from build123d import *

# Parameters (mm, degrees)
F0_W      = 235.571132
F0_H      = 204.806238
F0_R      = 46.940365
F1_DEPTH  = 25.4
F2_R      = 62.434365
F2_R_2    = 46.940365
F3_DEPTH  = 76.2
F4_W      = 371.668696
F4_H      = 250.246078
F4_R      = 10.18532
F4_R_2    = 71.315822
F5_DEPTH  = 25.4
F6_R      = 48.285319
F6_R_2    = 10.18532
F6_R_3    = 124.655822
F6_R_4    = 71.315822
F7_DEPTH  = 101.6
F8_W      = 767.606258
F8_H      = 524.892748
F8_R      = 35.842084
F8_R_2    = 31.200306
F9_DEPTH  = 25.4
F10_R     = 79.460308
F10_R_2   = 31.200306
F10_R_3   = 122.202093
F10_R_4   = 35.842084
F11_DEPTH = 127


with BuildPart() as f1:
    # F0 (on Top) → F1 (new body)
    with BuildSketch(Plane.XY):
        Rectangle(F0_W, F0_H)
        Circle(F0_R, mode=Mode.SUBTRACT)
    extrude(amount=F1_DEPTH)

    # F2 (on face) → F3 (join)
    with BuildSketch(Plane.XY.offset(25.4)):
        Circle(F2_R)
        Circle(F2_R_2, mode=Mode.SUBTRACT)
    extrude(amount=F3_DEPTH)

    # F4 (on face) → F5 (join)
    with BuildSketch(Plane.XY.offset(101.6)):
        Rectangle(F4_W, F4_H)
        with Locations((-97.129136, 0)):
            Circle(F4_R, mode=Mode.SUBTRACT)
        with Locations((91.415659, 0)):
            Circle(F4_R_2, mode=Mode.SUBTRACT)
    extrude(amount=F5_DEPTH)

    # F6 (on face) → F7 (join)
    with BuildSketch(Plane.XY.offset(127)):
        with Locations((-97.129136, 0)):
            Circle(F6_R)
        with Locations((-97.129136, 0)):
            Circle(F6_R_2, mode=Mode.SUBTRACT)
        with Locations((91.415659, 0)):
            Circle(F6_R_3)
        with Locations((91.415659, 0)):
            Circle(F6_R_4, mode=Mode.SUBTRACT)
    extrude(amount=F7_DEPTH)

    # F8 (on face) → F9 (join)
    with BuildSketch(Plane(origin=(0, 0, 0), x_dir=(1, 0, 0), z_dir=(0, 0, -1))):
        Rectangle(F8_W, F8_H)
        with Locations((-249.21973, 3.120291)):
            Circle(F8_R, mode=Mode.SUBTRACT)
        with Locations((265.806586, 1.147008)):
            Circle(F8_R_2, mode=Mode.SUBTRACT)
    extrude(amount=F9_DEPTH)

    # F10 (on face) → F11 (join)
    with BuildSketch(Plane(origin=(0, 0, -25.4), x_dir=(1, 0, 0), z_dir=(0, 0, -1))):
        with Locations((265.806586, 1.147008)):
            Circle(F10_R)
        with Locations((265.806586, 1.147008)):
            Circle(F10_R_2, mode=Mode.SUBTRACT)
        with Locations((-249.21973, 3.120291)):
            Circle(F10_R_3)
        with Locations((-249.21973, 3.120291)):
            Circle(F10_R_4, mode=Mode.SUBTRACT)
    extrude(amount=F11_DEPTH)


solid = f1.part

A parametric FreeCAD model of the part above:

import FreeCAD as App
import Part
import Sketcher

V = App.Vector
Q = App.Units.Quantity


def add_polygon(sketch, points):
    """Adds a closed chain of lines whose ends are joined by coincident constraints."""
    first, n = sketch.GeometryCount, len(points)
    for a, b in zip(points, points[1:] + points[:1]):
        sketch.addGeometry(Part.LineSegment(App.Vector(*a, 0), App.Vector(*b, 0)), False)
    for i in range(n):
        sketch.addConstraint(Sketcher.Constraint("Coincident", first + i, 2, first + (i + 1) % n, 1))

doc = App.newDocument("Part")
params = doc.addObject("Spreadsheet::Sheet", "Params")
for row, (alias, value) in enumerate([
    ("pad1_length", "1 in"),
    ("pad2_length", "3 in"),
    ("pad3_length", "1 in"),
    ("pad4_length", "4 in"),
    ("pad5_length", "1 in"),
    ("pad6_length", "5 in"),
], start=1):
    params.set(f"A{row}", alias)
    params.set(f"B{row}", "=" + value)
    params.setAlias(f"B{row}", alias)

body = doc.addObject("PartDesign::Body", "Body")

# Sketch on XY plane
sketch1 = body.newObject("Sketcher::SketchObject", "Sketch")
sketch1.AttachmentSupport = (doc.getObject("XY_Plane"), [""])
sketch1.MapMode = "FlatFace"
add_polygon(sketch1, [(-118, 102), (-118, -102), (118, -102), (118, 102)])  # lines 0-3
sketch1.addGeometry(Part.Circle(V(0, 0, 0), V(0, 0, 1), 47), False)  # 4
sketch1.addConstraint([
    Sketcher.Constraint("Vertical", 0),
    Sketcher.Constraint("Horizontal", 1),
    Sketcher.Constraint("Vertical", 2),
    Sketcher.Constraint("Horizontal", 3),
    Sketcher.Constraint("Coincident", 4, 3, -1, 1),
    Sketcher.Constraint("Symmetric", 0, 2, 2, 2, -1, 1),
    Sketcher.Constraint("Diameter", 4, Q("93.88073 mm")),
    Sketcher.Constraint("DistanceX", 1, 1, 1, 2, Q("235.571132 mm")),
    Sketcher.Constraint("DistanceY", 0, 2, 0, 1, Q("204.806238 mm")),
])
pad1 = body.newObject("PartDesign::Pad", "Pad")
pad1.Profile = sketch1
pad1.setExpression("Length", "Params.pad1_length")

# Sketch on XY plane
sketch2 = body.newObject("Sketcher::SketchObject", "Sketch001")
sketch2.AttachmentSupport = (doc.getObject("XY_Plane"), [""])
sketch2.MapMode = "FlatFace"
sketch2.AttachmentOffset = App.Placement(V(0, 0, 1 * 25.4), App.Rotation())
sketch2.addGeometry([
    Part.Circle(V(0, 0, 0), V(0, 0, 1), 62),
    Part.Circle(V(0, 0, 0), V(0, 0, 1), 47),
], False)
sketch2.addConstraint([
    Sketcher.Constraint("Coincident", 0, 3, -1, 1),
    Sketcher.Constraint("Coincident", 1, 3, -1, 1),
    Sketcher.Constraint("Diameter", 0, Q("124.86873 mm")),
    Sketcher.Constraint("Diameter", 1, Q("93.88073 mm")),
])
pad2 = body.newObject("PartDesign::Pad", "Pad001")
pad2.Profile = sketch2
pad2.setExpression("Length", "Params.pad2_length")

# Sketch on XY plane
sketch3 = body.newObject("Sketcher::SketchObject", "Sketch002")
sketch3.AttachmentSupport = (doc.getObject("XY_Plane"), [""])
sketch3.MapMode = "FlatFace"
sketch3.AttachmentOffset = App.Placement(V(0, 0, 4 * 25.4), App.Rotation())
add_polygon(sketch3, [(-186, 125), (-186, -125), (186, -125), (186, 125)])  # lines 0-3
sketch3.addGeometry(Part.Circle(V(-97, 0, 0), V(0, 0, 1), 10), False)  # 4
sketch3.addGeometry(Part.Circle(V(91, 0, 0), V(0, 0, 1), 71), False)  # 5
sketch3.addConstraint([
    Sketcher.Constraint("Vertical", 0),
    Sketcher.Constraint("Horizontal", 1),
    Sketcher.Constraint("Vertical", 2),
    Sketcher.Constraint("Horizontal", 3),
    Sketcher.Constraint("Symmetric", 0, 2, 2, 2, -1, 1),
    Sketcher.Constraint("PointOnObject", 4, 3, -1),
    Sketcher.Constraint("PointOnObject", 5, 3, -1),
    Sketcher.Constraint("Diameter", 4, Q("20.37064 mm")),
    Sketcher.Constraint("Diameter", 5, Q("142.631644 mm")),
    Sketcher.Constraint("DistanceY", 0, 2, 0, 1, Q("250.246078 mm")),
    Sketcher.Constraint("DistanceX", 1, 1, 1, 2, Q("371.668696 mm")),
    Sketcher.Constraint("DistanceX", -1, 1, 5, 3, Q("91.415659 mm")),
    Sketcher.Constraint("DistanceX", 4, 3, -1, 1, Q("97.129136 mm")),
])
pad3 = body.newObject("PartDesign::Pad", "Pad002")
pad3.Profile = sketch3
pad3.setExpression("Length", "Params.pad3_length")

# Sketch on XY plane
sketch4 = body.newObject("Sketcher::SketchObject", "Sketch003")
sketch4.AttachmentSupport = (doc.getObject("XY_Plane"), [""])
sketch4.MapMode = "FlatFace"
sketch4.AttachmentOffset = App.Placement(V(0, 0, 5 * 25.4), App.Rotation())
sketch4.addGeometry([
    Part.Circle(V(-97, 0, 0), V(0, 0, 1), 48),
    Part.Circle(V(-97, 0, 0), V(0, 0, 1), 10),
    Part.Circle(V(91, 0, 0), V(0, 0, 1), 125),
    Part.Circle(V(91, 0, 0), V(0, 0, 1), 71),
], False)
sketch4.addConstraint([
    Sketcher.Constraint("Coincident", 1, 3, 0, 3),
    Sketcher.Constraint("Coincident", 3, 3, 2, 3),
    Sketcher.Constraint("PointOnObject", 0, 3, -1),
    Sketcher.Constraint("PointOnObject", 2, 3, -1),
    Sketcher.Constraint("Diameter", 0, Q("96.570638 mm")),
    Sketcher.Constraint("Diameter", 1, Q("20.37064 mm")),
    Sketcher.Constraint("Diameter", 2, Q("249.311644 mm")),
    Sketcher.Constraint("Diameter", 3, Q("142.631644 mm")),
    Sketcher.Constraint("DistanceX", -1, 1, 2, 3, Q("91.415659 mm")),
    Sketcher.Constraint("DistanceX", 0, 3, -1, 1, Q("97.129136 mm")),
])
pad4 = body.newObject("PartDesign::Pad", "Pad003")
pad4.Profile = sketch4
pad4.setExpression("Length", "Params.pad4_length")

# Sketch on XY plane
sketch5 = body.newObject("Sketcher::SketchObject", "Sketch004")
sketch5.AttachmentSupport = (doc.getObject("XY_Plane"), [""])
sketch5.MapMode = "FlatFace"
add_polygon(sketch5, [(-384, -262), (-384, 262), (384, 262), (384, -262)])  # lines 0-3
sketch5.addGeometry(Part.Circle(V(266, -1, 0), V(0, 0, 1), 31), False)  # 4
sketch5.addGeometry(Part.Circle(V(-249, -3, 0), V(0, 0, 1), 36), False)  # 5
sketch5.addConstraint([
    Sketcher.Constraint("Vertical", 0),
    Sketcher.Constraint("Horizontal", 1),
    Sketcher.Constraint("Vertical", 2),
    Sketcher.Constraint("Horizontal", 3),
    Sketcher.Constraint("Symmetric", 0, 2, 2, 2, -1, 1),
    Sketcher.Constraint("Diameter", 5, Q("71.684168 mm")),
    Sketcher.Constraint("Diameter", 4, Q("62.400612 mm")),
    Sketcher.Constraint("DistanceX", 1, 1, 1, 2, Q("767.606258 mm")),
    Sketcher.Constraint("DistanceY", 0, 1, 0, 2, Q("524.892748 mm")),
    Sketcher.Constraint("DistanceX", 0, 2, 5, 3, Q("134.583399 mm")),
    Sketcher.Constraint("DistanceY", 5, 3, -1, 1, Q("3.120291 mm")),
    Sketcher.Constraint("DistanceY", 4, 3, 0, 2, Q("263.593382 mm")),
    Sketcher.Constraint("DistanceX", -1, 1, 4, 3, Q("265.806586 mm")),
])
pad5 = body.newObject("PartDesign::Pad", "Pad004")
pad5.Profile = sketch5
pad5.setExpression("Length", "Params.pad5_length")
pad5.Reversed = True

# Sketch on XY plane
sketch6 = body.newObject("Sketcher::SketchObject", "Sketch005")
sketch6.AttachmentSupport = (doc.getObject("XY_Plane"), [""])
sketch6.MapMode = "FlatFace"
sketch6.AttachmentOffset = App.Placement(V(0, 0, -1 * 25.4), App.Rotation())
sketch6.addGeometry([
    Part.Circle(V(266, -1, 0), V(0, 0, 1), 79),
    Part.Circle(V(266, -1, 0), V(0, 0, 1), 31),
    Part.Circle(V(-249, -3, 0), V(0, 0, 1), 122),
    Part.Circle(V(-249, -3, 0), V(0, 0, 1), 36),
], False)
sketch6.addConstraint([
    Sketcher.Constraint("Coincident", 1, 3, 0, 3),
    Sketcher.Constraint("Coincident", 3, 3, 2, 3),
    Sketcher.Constraint("Diameter", 3, Q("71.684168 mm")),
    Sketcher.Constraint("Diameter", 0, Q("158.920616 mm")),
    Sketcher.Constraint("Diameter", 1, Q("62.400612 mm")),
    Sketcher.Constraint("Diameter", 2, Q("244.404186 mm")),
    Sketcher.Constraint("DistanceX", 2, 3, -1, 1, Q("249.21973 mm")),
    Sketcher.Constraint("DistanceY", 2, 3, -1, 1, Q("3.120291 mm")),
    Sketcher.Constraint("DistanceX", -1, 1, 0, 3, Q("265.806586 mm")),
    Sketcher.Constraint("DistanceY", 0, 3, -1, 1, Q("1.147008 mm")),
])
pad6 = body.newObject("PartDesign::Pad", "Pad005")
pad6.Profile = sketch6
pad6.setExpression("Length", "Params.pad6_length")
pad6.Reversed = True

doc.recompute()
